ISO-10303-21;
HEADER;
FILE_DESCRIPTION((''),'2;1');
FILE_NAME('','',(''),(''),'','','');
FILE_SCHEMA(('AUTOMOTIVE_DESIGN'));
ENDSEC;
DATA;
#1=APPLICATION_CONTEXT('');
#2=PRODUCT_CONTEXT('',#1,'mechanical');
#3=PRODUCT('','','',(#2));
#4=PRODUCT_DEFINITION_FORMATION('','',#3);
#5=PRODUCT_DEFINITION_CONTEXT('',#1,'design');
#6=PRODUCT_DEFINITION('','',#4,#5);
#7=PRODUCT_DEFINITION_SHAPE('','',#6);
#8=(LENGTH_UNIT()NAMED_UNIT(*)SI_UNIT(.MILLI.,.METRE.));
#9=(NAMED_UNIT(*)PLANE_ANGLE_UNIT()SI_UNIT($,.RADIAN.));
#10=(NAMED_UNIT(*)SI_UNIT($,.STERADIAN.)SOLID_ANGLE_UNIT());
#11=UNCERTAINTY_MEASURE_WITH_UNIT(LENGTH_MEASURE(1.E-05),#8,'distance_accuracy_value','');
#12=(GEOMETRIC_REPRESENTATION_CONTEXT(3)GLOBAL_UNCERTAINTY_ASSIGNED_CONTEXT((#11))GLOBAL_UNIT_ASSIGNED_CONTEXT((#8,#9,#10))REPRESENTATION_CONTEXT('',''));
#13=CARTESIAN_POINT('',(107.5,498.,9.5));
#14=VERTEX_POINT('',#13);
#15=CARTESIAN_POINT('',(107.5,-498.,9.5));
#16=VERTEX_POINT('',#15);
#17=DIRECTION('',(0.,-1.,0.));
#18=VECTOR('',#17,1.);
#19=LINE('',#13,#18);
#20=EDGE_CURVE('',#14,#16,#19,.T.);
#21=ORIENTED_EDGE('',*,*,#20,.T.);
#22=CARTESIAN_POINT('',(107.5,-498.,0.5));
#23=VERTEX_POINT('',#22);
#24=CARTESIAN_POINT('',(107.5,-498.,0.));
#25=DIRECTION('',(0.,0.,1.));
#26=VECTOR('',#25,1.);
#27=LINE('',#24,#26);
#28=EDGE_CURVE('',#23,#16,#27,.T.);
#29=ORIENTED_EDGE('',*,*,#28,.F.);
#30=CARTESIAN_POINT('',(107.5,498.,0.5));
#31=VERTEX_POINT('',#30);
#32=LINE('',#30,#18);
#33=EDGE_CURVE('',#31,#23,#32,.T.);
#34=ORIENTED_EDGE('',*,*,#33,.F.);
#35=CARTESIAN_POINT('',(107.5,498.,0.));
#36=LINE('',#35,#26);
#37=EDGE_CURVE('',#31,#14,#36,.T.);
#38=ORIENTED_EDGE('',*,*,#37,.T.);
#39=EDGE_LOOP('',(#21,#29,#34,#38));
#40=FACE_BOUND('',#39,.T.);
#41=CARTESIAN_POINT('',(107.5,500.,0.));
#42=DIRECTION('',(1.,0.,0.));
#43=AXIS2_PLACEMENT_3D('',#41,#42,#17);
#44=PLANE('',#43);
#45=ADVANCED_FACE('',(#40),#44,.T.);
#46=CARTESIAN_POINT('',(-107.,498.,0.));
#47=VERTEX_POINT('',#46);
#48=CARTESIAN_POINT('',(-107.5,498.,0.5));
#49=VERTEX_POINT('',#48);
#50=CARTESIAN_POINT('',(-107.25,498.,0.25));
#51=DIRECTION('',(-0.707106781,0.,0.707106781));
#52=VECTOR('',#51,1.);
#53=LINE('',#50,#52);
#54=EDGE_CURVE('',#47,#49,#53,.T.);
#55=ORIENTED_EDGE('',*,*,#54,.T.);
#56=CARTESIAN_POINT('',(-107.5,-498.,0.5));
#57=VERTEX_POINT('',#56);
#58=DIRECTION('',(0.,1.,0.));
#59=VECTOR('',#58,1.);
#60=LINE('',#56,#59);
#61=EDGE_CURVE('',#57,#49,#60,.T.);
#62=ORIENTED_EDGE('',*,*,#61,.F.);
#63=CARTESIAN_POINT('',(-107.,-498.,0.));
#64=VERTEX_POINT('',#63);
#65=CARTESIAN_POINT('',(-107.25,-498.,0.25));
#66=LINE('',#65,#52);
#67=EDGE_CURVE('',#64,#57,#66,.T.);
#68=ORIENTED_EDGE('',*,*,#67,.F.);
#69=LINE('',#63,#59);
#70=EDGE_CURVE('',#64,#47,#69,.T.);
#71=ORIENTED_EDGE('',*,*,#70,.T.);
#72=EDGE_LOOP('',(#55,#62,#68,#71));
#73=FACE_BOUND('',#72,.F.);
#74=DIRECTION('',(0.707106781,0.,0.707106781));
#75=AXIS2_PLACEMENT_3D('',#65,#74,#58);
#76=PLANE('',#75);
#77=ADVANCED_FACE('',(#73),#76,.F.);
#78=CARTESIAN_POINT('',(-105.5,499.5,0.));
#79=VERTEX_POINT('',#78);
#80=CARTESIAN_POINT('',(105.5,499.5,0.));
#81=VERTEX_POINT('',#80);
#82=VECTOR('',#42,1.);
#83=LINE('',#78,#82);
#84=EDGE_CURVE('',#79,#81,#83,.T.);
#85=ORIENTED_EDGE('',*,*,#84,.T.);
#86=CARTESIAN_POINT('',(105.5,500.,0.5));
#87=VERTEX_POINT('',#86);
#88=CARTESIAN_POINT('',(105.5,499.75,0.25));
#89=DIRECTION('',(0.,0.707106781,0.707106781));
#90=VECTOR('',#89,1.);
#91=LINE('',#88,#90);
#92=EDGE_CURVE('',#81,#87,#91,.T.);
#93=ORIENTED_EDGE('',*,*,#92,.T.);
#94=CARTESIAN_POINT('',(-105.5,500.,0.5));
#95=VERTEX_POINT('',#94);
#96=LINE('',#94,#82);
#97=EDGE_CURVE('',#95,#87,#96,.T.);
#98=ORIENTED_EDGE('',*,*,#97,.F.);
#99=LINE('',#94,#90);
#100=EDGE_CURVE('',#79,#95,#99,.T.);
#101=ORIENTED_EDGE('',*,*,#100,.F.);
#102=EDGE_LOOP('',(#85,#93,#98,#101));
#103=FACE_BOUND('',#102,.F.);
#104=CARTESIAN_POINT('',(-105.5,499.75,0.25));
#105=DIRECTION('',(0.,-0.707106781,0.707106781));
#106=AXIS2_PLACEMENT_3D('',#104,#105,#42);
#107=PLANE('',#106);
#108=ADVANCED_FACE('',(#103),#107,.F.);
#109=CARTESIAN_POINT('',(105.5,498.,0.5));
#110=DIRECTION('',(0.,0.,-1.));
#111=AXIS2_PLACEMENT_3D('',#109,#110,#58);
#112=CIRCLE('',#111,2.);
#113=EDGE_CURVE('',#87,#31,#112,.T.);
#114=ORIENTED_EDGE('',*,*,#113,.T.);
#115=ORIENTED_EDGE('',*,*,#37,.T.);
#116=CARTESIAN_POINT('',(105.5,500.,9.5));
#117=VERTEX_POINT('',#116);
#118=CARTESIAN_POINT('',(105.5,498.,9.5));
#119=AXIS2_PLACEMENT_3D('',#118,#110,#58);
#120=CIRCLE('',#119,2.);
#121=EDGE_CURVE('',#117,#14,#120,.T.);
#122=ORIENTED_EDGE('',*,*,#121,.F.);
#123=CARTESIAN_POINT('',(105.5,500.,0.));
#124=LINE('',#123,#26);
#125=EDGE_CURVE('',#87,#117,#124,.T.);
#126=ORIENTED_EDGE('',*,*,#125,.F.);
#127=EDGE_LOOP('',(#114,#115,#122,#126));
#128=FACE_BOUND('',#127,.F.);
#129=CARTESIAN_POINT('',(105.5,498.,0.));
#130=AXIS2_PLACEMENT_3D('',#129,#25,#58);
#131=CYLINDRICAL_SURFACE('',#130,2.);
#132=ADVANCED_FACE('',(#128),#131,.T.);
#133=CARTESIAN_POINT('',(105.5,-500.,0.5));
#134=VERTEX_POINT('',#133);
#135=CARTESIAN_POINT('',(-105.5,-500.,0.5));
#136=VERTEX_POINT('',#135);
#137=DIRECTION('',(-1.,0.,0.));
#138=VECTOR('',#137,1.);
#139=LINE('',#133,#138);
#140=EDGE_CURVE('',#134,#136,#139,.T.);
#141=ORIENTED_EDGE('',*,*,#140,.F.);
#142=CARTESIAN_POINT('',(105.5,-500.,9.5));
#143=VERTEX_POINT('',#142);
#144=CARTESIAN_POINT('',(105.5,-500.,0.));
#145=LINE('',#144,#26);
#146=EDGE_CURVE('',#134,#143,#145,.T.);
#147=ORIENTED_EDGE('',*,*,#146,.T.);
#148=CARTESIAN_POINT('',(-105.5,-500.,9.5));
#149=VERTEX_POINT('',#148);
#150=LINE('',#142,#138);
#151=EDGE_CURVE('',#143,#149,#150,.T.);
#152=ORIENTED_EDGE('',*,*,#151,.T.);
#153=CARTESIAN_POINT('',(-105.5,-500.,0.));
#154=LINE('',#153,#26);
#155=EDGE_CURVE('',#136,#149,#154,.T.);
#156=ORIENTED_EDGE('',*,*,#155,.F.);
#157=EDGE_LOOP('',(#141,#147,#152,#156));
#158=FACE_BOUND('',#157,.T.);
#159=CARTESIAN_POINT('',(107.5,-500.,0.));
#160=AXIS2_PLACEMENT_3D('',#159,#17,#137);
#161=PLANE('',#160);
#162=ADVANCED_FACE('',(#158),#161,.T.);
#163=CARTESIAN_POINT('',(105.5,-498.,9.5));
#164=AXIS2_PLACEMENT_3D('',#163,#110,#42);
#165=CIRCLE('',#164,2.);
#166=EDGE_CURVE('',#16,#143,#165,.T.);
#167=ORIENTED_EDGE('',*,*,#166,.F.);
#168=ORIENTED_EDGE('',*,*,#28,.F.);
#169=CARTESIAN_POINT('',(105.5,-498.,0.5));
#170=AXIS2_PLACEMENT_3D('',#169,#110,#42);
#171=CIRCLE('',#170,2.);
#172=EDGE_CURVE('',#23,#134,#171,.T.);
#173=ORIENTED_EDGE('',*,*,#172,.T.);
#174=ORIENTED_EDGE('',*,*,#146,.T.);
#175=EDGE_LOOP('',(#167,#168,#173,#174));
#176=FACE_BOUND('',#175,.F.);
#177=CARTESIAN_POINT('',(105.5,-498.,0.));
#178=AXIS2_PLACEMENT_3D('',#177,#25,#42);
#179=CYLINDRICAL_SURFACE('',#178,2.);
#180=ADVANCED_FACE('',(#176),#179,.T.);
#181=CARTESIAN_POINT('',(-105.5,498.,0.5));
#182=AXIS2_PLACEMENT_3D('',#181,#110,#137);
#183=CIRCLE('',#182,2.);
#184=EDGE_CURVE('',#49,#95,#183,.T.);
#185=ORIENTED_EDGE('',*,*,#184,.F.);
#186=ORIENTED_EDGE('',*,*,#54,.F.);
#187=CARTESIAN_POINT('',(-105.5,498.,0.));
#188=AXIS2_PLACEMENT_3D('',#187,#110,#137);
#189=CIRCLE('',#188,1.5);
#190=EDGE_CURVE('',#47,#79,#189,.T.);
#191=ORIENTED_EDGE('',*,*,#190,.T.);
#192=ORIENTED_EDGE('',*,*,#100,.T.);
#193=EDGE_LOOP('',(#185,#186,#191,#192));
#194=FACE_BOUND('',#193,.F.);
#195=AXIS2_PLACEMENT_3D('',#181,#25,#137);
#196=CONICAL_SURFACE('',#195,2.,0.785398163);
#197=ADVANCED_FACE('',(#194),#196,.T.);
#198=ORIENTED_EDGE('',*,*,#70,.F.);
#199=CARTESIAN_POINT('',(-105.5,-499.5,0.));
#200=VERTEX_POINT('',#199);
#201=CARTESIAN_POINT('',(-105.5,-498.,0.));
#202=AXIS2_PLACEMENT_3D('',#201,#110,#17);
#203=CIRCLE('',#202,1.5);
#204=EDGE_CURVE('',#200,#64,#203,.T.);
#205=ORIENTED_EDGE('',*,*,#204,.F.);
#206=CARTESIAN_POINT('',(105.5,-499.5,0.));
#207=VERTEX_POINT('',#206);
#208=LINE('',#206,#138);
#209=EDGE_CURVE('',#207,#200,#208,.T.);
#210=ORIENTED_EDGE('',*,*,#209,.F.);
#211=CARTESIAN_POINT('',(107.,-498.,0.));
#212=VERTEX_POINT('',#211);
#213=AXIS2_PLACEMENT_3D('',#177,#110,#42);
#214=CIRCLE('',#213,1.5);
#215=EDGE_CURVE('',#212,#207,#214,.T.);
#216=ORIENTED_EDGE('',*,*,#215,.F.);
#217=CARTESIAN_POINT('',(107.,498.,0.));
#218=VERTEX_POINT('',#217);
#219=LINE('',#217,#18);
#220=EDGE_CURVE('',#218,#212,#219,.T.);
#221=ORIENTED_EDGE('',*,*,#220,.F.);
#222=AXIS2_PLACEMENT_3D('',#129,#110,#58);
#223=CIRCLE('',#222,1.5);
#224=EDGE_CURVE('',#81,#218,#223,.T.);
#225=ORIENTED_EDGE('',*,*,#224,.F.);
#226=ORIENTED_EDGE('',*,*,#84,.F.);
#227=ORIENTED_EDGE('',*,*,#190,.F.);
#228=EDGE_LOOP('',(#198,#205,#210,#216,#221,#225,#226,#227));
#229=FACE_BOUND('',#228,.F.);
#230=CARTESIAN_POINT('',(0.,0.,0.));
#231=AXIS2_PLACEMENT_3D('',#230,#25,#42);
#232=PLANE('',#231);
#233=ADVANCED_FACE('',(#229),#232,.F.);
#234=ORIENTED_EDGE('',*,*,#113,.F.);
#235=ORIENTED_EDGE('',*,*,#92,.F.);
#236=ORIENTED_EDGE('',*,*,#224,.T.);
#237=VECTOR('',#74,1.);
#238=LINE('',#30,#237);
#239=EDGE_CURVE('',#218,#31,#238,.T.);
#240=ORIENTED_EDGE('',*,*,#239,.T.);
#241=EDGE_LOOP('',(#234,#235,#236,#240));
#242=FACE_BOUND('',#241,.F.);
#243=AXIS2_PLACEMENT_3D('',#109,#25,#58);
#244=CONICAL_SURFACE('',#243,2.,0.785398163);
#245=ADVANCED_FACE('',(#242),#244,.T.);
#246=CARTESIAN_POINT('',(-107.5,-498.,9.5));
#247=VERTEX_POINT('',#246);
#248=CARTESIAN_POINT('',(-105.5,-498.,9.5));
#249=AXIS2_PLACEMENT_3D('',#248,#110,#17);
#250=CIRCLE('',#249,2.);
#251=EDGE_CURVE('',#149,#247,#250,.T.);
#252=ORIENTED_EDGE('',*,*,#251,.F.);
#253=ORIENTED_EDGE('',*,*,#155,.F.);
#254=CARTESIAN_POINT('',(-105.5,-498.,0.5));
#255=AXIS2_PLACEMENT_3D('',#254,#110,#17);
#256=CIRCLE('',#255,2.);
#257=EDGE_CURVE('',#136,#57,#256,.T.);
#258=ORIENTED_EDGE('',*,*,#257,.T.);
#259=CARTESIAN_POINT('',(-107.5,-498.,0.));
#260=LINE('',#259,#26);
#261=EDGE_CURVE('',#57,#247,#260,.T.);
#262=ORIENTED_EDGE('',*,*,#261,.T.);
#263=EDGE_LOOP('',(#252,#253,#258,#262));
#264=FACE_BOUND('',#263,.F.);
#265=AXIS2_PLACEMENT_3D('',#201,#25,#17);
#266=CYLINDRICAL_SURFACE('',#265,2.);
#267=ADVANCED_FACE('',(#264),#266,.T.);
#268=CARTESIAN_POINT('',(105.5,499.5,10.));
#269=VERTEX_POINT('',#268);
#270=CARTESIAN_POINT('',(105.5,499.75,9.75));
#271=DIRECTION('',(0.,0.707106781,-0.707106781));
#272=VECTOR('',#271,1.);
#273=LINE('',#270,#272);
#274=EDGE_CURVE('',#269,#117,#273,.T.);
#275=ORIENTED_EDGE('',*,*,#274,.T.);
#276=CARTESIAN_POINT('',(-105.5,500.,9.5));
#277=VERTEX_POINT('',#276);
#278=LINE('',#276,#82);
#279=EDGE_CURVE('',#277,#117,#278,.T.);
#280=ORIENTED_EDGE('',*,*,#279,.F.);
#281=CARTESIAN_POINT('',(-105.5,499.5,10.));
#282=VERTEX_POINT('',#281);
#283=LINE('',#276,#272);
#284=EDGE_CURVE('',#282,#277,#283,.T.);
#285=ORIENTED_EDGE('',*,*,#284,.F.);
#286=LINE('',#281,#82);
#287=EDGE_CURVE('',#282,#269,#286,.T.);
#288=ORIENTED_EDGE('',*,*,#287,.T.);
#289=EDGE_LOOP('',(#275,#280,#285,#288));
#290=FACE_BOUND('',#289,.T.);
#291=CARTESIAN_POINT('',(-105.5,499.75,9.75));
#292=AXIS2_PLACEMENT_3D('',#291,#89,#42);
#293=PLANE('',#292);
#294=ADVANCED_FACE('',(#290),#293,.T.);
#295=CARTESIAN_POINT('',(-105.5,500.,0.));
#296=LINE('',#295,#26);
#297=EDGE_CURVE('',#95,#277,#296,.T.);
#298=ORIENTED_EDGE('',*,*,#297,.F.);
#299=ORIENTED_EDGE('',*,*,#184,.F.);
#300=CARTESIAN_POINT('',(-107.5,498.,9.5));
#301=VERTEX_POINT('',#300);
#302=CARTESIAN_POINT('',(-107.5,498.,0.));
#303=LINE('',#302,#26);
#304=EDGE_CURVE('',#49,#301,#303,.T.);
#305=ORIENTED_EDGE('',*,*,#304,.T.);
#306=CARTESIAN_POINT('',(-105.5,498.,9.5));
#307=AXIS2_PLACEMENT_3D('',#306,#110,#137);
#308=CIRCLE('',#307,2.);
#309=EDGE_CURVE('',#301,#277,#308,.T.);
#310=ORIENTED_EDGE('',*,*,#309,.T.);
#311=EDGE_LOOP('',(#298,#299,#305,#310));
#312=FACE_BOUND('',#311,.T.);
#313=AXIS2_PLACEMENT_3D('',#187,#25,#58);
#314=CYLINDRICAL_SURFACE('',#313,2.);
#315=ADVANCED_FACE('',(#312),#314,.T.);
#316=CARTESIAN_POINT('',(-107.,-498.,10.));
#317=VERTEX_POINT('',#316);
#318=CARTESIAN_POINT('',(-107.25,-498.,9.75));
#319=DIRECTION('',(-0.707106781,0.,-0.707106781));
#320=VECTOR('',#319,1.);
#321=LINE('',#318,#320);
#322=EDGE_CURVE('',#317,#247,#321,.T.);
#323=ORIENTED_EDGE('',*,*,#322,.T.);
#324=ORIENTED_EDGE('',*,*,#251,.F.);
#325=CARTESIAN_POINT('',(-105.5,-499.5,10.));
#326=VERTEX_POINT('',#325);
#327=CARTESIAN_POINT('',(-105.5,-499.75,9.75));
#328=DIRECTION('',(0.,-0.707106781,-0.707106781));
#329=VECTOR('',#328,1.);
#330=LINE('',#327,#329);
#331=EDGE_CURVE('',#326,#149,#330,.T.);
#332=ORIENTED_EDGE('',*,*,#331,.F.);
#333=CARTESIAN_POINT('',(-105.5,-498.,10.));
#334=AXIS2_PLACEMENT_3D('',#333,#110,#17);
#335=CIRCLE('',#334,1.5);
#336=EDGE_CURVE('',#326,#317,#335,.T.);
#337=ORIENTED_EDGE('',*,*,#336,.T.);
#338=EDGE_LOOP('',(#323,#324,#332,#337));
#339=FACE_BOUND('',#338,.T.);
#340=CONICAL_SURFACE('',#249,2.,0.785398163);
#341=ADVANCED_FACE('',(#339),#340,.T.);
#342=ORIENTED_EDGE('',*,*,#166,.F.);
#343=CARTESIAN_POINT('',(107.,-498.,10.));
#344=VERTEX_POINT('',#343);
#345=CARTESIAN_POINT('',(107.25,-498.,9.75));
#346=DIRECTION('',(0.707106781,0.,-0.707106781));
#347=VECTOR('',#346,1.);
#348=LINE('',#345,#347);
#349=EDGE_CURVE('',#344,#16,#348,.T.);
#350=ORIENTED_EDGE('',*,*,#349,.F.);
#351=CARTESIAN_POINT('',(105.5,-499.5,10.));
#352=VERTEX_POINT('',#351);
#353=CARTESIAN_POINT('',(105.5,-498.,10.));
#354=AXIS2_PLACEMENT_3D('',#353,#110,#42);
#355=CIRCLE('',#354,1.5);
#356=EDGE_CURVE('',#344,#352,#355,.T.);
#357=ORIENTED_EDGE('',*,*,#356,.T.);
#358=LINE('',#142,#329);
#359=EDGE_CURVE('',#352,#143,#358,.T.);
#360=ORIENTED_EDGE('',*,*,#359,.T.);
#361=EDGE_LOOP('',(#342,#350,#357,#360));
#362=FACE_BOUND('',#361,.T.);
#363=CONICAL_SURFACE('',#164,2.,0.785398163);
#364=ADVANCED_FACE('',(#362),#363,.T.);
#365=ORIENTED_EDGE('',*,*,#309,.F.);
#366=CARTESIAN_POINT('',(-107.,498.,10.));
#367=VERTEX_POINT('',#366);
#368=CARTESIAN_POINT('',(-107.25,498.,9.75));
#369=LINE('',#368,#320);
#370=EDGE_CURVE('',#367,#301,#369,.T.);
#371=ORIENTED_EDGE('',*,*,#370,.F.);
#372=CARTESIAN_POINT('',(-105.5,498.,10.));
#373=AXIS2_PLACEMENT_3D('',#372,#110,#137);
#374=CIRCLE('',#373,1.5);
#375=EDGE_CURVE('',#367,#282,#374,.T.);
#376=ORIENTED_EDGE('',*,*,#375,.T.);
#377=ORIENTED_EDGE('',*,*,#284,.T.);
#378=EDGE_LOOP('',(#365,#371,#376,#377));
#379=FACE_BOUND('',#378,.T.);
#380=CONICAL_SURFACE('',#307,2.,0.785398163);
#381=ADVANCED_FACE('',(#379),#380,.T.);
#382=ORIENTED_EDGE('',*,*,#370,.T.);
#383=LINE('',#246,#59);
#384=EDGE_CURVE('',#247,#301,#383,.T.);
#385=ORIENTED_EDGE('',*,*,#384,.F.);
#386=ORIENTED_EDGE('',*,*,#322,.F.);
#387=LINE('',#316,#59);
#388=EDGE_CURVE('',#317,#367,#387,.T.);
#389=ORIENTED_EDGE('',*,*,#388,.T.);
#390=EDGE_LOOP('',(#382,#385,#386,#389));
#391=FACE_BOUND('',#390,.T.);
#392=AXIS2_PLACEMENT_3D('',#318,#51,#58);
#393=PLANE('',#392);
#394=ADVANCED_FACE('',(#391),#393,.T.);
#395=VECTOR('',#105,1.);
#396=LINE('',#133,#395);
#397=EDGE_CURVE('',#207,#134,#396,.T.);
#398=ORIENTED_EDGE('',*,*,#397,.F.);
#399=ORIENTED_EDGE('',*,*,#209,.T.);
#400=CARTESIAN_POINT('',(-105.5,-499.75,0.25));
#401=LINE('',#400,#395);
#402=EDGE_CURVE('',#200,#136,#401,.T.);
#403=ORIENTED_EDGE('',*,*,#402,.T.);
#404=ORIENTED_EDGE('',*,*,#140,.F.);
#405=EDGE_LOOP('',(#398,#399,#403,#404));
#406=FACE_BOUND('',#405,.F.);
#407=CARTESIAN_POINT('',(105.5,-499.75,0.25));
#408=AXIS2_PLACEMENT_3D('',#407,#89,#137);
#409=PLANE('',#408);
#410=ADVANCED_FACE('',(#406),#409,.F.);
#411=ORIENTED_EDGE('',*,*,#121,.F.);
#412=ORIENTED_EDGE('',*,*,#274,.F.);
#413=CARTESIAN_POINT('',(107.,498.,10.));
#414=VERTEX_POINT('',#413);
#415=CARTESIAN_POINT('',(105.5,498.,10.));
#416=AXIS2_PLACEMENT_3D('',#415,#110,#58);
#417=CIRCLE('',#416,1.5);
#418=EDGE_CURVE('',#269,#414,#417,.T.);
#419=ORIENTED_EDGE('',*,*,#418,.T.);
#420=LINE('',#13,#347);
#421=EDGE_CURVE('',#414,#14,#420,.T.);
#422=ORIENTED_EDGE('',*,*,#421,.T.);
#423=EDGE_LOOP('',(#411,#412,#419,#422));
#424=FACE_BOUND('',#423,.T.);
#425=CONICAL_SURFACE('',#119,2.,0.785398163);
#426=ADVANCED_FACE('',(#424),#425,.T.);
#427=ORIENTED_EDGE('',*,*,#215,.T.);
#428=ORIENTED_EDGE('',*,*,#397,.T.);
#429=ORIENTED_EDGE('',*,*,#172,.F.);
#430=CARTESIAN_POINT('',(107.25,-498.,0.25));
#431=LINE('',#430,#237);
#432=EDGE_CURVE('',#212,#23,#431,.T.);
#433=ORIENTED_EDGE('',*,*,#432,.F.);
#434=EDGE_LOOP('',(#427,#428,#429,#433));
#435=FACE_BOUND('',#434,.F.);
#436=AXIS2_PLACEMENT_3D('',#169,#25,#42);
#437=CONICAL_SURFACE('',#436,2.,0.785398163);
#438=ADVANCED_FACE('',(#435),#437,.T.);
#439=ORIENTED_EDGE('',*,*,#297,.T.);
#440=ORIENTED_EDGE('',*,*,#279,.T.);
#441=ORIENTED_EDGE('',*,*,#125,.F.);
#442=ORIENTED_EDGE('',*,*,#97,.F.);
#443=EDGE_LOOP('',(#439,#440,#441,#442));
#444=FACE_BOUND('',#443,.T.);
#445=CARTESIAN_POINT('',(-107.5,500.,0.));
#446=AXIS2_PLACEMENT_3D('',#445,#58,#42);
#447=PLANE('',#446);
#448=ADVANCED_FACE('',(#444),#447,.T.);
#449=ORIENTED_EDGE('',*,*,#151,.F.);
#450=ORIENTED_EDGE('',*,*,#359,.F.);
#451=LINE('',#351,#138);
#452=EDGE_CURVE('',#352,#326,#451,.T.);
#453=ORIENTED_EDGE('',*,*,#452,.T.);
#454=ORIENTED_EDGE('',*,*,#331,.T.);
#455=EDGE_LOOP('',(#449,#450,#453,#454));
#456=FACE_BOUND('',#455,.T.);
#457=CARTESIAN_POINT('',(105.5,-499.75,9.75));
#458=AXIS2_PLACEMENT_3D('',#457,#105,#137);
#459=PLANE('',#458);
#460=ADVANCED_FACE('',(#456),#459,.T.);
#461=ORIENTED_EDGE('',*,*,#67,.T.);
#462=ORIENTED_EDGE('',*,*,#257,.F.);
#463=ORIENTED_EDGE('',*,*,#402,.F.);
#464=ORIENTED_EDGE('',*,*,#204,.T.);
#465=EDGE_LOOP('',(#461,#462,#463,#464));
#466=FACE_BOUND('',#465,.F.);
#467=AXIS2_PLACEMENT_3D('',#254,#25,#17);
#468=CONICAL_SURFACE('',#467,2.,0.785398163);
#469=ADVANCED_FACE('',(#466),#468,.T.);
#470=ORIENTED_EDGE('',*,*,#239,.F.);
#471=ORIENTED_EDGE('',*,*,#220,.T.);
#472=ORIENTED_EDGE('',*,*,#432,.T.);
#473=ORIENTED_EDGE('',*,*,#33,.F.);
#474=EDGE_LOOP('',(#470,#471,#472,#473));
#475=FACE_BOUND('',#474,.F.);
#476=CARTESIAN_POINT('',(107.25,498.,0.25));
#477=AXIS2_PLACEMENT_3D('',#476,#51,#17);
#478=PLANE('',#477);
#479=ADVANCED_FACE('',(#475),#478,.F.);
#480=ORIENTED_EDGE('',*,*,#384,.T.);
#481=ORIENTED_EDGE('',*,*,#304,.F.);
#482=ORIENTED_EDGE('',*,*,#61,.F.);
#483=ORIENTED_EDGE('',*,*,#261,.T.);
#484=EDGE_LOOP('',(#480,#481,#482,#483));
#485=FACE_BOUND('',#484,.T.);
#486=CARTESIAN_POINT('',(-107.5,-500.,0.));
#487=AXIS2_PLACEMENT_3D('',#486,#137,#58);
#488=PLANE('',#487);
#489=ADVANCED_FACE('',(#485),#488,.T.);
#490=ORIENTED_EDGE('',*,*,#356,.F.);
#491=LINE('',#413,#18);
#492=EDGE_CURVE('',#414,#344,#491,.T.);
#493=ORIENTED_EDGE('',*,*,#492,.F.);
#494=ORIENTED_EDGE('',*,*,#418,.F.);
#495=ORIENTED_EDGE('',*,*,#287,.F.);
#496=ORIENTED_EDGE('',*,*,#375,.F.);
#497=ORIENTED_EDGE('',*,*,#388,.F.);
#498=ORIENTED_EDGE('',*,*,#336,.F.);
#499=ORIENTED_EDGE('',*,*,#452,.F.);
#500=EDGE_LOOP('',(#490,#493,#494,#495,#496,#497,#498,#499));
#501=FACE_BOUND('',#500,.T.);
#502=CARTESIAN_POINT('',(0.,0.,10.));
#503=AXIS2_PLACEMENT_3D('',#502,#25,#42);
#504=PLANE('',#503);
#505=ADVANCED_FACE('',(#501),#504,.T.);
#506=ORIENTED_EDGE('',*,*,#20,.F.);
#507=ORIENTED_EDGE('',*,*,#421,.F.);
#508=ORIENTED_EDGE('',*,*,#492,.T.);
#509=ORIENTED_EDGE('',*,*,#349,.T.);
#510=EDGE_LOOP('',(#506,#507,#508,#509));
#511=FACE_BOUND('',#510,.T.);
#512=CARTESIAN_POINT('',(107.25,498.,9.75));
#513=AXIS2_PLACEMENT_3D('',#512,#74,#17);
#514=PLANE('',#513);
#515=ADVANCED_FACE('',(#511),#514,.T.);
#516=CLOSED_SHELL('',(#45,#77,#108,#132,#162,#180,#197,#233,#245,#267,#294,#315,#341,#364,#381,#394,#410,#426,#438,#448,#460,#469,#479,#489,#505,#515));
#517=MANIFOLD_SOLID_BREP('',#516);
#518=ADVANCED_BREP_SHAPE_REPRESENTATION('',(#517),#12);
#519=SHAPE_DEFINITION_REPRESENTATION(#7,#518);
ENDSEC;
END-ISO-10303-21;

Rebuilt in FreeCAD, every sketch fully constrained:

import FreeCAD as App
import Part
import Sketcher

V = App.Vector
Q = App.Units.Quantity


def edges_at(feature, points):
    """Names of the edges that pass closest to the given points."""
    edges = feature.Shape.Edges
    near = lambda p: min(range(len(edges)), key=lambda i: edges[i].distToShape(Part.Vertex(*p))[0])
    return sorted({f"Edge{near(p) + 1}" for p in points})


def add_polygon(sketch, points):
    """Adds a closed chain of lines whose ends are joined by coincident constraints."""
    first, n = sketch.GeometryCount, len(points)
    for a, b in zip(points, points[1:] + points[:1]):
        sketch.addGeometry(Part.LineSegment(App.Vector(*a, 0), App.Vector(*b, 0)), False)
    for i in range(n):
        sketch.addConstraint(Sketcher.Constraint("Coincident", first + i, 2, first + (i + 1) % n, 1))

doc = App.newDocument("Part")
body = doc.addObject("PartDesign::Body", "Body")

sketch1 = body.newObject("Sketcher::SketchObject", "Sketch")
sketch1.AttachmentSupport = (doc.getObject("XY_Plane"), [""])
sketch1.MapMode = "FlatFace"
add_polygon(sketch1, [(108, 500), (-108, 500), (-108, -500), (108, -500)])
sketch1.addConstraint([
    Sketcher.Constraint("Horizontal", 0),
    Sketcher.Constraint("Vertical", 1),
    Sketcher.Constraint("Horizontal", 2),
    Sketcher.Constraint("Vertical", 3),
    Sketcher.Constraint("Symmetric", 0, 2, 2, 2, -1, 1),
    Sketcher.Constraint("DistanceX", 0, 2, 0, 1, Q("215 mm")),
    Sketcher.Constraint("DistanceY", 1, 2, 1, 1, Q("1000 mm")),
])
pad1 = body.newObject("PartDesign::Pad", "Pad")
pad1.Profile = sketch1
pad1.Length = 10
doc.recompute()

fillet = body.newObject("PartDesign::Fillet", "Fillet")
fillet.Base = (pad1, edges_at(pad1, [
    (107.5, 500, 5),
    (-107.5, 500, 5),
    (107.5, -500, 5),
    (-107.5, -500, 5),
]))
fillet.Radius = 2
doc.recompute()

chamfer = body.newObject("PartDesign::Chamfer", "Chamfer")
chamfer.Base = (fillet, edges_at(fillet, [
    (-107.5, 0, 10),
    (-106.914, -499.414, 10),
    (0, -500, 10),
    (106.914, -499.414, 10),
    (107.5, 0, 10),
    (106.914, 499.414, 10),
    (0, 500, 10),
    (-106.914, 499.414, 10),
    (-107.5, 0, 0),
    (-106.914, -499.414, 0),
    (0, -500, 0),
    (106.914, -499.414, 0),
    (107.5, 0, 0),
    (106.914, 499.414, 0),
    (0, 500, 0),
    (-106.914, 499.414, 0),
]))
chamfer.Size = 0.5

doc.recompute()
